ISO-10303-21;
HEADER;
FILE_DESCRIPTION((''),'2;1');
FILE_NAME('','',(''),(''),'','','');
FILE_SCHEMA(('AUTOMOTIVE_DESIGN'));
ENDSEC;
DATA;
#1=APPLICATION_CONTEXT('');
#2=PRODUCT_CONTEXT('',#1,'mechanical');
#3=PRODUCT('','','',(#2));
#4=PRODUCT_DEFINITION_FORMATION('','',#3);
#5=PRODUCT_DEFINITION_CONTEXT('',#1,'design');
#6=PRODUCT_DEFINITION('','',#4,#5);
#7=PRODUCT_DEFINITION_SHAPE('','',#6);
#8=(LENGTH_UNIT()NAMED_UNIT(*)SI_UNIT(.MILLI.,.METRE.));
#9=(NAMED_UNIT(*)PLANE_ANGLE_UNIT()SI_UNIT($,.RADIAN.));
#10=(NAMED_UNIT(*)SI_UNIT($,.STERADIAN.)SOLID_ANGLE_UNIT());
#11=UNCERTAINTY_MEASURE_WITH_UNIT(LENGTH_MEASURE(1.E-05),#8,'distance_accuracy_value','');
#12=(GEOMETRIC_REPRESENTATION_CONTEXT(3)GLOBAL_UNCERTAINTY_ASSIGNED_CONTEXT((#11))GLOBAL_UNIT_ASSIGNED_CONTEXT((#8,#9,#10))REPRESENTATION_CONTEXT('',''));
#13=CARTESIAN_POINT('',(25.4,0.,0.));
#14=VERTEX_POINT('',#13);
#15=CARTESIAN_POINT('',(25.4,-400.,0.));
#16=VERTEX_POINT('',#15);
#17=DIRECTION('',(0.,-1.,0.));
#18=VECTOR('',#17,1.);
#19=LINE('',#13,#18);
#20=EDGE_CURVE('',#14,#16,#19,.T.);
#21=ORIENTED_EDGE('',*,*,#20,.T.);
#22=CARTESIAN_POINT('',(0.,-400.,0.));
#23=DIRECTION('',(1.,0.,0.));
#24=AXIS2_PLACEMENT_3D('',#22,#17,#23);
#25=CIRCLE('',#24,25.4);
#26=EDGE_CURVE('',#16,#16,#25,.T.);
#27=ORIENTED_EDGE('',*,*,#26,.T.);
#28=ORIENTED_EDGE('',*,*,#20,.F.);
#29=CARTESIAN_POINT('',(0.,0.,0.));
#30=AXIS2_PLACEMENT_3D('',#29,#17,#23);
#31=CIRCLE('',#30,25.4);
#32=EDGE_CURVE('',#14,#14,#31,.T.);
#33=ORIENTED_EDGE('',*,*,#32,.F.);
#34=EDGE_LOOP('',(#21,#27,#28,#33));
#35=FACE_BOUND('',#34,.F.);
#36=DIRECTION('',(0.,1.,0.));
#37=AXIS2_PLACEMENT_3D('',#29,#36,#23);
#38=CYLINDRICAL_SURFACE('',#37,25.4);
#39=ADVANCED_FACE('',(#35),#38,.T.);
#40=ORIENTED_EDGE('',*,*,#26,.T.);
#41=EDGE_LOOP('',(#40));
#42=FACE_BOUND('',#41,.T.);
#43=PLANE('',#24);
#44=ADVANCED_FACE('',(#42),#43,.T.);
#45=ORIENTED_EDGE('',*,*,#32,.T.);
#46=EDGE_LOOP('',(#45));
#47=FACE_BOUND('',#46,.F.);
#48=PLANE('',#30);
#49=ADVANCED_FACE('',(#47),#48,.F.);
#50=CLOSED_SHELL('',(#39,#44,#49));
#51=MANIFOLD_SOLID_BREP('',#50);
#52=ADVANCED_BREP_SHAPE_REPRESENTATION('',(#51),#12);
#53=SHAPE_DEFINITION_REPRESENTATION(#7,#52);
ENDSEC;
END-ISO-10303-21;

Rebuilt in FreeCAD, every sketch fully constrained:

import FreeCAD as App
import Part
import Sketcher
from FreeCAD import Vector

doc = App.newDocument("Part")
body = doc.addObject("PartDesign::Body", "Body")

# Sketch on XZ plane
sketch1 = doc.addObject("Sketcher::SketchObject", "Sketch")
body.addObject(sketch1)
sketch1.AttachmentSupport = (doc.XZ_Plane, [""])
sketch1.MapMode = "FlatFace"
sketch1.addGeometry(Part.Circle(Vector(0, 0, 0), Vector(0, 0, 1), 25), False)
sketch1.addConstraint(Sketcher.Constraint("Coincident", 0, 3, -1, 1))
sketch1.addConstraint(Sketcher.Constraint("Diameter", 0, 50.8))
pad1 = doc.addObject("PartDesign::Pad", "Pad")
body.addObject(pad1)
pad1.Profile = sketch1
pad1.Length = 400

doc.recompute()
